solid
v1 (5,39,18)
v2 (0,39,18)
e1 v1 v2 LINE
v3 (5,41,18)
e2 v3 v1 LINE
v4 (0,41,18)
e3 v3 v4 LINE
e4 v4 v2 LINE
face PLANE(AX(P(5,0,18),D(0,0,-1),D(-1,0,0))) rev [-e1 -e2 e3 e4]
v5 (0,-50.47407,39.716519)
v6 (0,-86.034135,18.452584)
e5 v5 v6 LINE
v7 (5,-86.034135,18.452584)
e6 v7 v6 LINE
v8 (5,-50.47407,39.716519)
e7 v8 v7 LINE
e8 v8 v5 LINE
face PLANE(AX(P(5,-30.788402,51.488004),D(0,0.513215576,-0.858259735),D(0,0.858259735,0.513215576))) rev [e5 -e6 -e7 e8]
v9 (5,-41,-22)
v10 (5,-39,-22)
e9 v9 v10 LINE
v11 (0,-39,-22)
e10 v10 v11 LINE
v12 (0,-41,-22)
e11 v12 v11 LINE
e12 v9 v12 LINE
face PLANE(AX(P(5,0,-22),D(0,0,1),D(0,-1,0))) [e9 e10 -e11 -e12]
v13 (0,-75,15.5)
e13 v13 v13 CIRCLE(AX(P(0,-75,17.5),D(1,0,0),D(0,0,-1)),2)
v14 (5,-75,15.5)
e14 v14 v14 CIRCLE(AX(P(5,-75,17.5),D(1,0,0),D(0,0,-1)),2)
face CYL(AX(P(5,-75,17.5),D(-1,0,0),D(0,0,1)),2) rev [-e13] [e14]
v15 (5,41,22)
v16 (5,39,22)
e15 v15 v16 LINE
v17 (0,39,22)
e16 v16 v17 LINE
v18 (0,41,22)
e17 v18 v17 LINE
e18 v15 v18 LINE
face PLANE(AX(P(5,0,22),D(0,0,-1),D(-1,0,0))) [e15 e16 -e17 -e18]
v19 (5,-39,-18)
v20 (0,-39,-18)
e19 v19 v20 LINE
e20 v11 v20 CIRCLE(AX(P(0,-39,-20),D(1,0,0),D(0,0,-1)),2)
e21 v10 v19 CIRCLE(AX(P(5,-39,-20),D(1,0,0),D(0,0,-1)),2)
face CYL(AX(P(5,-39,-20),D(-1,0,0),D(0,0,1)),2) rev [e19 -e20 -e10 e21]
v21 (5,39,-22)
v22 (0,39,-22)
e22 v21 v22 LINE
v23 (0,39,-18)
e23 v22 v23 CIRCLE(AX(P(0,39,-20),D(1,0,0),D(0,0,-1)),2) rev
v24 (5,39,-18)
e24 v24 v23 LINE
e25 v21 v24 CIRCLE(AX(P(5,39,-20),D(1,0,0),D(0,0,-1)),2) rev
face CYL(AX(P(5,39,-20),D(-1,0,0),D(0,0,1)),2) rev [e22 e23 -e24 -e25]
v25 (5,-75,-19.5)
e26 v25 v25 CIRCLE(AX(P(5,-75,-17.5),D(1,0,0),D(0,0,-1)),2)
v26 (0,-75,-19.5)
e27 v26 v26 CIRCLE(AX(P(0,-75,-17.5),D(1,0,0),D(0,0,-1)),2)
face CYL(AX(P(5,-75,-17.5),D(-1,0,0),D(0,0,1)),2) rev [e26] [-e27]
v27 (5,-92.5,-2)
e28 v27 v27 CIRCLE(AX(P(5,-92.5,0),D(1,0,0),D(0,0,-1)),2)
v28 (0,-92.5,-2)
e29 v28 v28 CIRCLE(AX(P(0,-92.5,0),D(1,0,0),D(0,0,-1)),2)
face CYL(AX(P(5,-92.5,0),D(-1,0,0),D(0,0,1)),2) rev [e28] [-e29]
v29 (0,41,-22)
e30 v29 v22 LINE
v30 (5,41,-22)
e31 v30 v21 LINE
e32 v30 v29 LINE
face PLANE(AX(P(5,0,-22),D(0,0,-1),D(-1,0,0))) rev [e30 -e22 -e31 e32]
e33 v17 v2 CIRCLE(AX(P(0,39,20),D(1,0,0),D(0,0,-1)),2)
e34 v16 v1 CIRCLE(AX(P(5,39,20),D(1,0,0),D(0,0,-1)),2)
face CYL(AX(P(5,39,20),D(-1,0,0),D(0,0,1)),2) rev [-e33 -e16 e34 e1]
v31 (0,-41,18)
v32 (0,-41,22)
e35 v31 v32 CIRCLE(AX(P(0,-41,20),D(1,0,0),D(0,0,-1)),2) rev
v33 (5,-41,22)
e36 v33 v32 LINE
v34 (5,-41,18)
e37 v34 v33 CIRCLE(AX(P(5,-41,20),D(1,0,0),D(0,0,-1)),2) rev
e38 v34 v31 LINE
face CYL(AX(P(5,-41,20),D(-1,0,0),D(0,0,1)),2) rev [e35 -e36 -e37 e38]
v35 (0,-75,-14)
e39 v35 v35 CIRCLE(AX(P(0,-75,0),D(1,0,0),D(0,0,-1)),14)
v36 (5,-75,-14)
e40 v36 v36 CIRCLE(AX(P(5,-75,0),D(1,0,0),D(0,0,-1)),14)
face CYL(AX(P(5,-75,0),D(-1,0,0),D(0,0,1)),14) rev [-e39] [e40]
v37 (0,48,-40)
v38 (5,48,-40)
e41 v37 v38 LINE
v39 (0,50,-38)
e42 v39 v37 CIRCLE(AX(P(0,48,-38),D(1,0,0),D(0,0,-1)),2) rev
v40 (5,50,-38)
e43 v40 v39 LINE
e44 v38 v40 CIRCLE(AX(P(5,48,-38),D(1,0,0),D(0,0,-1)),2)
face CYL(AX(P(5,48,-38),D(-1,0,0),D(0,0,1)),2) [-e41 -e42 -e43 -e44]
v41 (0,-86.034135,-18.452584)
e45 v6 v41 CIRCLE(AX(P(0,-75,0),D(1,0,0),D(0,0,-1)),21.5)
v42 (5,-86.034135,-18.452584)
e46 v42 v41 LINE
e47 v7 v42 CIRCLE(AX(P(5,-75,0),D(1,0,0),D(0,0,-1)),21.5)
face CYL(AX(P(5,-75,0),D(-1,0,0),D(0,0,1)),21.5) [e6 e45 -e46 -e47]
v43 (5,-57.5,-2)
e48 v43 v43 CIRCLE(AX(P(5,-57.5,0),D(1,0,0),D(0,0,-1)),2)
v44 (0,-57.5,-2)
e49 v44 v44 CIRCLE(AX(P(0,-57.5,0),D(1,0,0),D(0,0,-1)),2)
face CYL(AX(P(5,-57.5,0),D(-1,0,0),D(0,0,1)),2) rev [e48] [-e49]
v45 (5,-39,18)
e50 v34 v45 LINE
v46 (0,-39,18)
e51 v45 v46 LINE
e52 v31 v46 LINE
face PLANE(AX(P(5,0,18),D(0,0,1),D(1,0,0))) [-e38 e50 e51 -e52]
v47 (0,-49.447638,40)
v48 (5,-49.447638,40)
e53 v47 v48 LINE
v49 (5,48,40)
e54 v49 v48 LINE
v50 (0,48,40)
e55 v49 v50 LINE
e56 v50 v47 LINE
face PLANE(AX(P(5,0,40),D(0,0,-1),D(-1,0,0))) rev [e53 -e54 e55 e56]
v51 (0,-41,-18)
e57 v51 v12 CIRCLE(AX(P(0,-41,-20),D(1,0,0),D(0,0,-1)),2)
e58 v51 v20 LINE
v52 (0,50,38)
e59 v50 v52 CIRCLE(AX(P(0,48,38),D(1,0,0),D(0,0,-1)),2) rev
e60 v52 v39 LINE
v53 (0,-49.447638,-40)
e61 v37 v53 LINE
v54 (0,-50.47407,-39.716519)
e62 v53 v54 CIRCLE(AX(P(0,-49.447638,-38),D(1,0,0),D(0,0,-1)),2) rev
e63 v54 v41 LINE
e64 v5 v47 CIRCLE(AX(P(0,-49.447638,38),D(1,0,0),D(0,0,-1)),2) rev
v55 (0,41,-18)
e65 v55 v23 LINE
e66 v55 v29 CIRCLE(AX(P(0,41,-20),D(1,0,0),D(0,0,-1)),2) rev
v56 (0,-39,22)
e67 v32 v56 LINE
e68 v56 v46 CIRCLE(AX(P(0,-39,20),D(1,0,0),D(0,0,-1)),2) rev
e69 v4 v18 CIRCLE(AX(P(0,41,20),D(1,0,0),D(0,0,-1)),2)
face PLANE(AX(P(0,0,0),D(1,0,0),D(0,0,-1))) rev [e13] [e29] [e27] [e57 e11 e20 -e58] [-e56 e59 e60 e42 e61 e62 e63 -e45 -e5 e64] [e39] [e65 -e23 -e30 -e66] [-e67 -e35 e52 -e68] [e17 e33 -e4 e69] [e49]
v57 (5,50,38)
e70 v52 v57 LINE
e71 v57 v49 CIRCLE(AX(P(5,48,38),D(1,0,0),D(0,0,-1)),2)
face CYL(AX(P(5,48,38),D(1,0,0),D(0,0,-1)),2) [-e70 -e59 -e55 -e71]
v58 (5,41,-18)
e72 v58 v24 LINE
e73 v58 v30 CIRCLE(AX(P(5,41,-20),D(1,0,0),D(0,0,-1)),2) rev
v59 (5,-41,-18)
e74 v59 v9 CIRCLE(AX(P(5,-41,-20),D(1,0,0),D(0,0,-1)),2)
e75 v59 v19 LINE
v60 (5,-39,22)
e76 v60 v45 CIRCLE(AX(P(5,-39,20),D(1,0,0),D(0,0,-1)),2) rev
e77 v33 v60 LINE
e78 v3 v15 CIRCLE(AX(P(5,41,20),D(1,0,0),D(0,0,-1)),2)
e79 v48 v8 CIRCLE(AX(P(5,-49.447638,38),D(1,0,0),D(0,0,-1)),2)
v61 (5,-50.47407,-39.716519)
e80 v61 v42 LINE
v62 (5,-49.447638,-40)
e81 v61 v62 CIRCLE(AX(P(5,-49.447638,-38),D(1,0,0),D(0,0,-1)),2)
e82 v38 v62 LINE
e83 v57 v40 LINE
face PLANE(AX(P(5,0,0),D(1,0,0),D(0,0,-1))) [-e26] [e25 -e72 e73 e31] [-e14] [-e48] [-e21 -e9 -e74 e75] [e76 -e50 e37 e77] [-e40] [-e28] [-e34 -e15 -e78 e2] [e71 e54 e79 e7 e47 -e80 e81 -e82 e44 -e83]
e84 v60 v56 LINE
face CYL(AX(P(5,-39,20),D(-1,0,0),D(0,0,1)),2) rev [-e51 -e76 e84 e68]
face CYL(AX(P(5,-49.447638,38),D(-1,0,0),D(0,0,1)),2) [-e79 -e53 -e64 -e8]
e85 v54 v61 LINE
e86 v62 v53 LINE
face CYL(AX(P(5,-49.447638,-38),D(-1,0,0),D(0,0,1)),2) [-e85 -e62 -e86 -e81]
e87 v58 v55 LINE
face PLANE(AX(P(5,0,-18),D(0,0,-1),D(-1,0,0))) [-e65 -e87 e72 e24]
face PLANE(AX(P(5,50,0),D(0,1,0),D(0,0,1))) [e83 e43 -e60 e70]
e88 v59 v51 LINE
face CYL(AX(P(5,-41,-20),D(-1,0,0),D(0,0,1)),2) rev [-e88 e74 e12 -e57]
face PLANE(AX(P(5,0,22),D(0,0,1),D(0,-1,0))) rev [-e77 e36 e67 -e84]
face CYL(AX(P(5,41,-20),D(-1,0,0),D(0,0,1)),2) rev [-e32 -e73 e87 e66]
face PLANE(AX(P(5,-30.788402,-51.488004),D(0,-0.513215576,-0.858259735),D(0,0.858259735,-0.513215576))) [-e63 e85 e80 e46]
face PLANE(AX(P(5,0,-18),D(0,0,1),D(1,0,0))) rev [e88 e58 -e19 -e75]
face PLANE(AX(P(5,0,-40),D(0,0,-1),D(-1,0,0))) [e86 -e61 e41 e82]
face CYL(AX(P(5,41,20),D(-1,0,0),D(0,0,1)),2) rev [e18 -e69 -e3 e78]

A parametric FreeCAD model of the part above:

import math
import FreeCAD as App
import Part
import Sketcher
Q = App.Units.Quantity


def edges_at(feature, points):
    """Names of the edges that pass closest to the given points."""
    edges = feature.Shape.Edges
    near = lambda p: min(range(len(edges)), key=lambda i: edges[i].distToShape(Part.Vertex(*p))[0])
    return sorted({f"Edge{near(p) + 1}" for p in points})

doc = App.newDocument("Part")
body = doc.addObject("PartDesign::Body", "Body")

# Sketch on YZ plane
sketch1 = body.newObject("Sketcher::SketchObject", "Sketch")
sketch1.AttachmentSupport = (doc.getObject("YZ_Plane"), [""])
sketch1.MapMode = "FlatFace"
sketch1.addGeometry(Part.LineSegment(App.Vector(50, 40, 0), App.Vector(-50, 40, 0)), False)
sketch1.addGeometry(Part.LineSegment(App.Vector(-50, 40, 0), App.Vector(-86, 18.5, 0)), False)
sketch1.addGeometry(Part.ArcOfCircle(Part.Circle(App.Vector(-75, 0, 0), App.Vector(0, 0, 1), 21.5), math.radians(121), math.radians(239)), False)
sketch1.addGeometry(Part.LineSegment(App.Vector(-86, -18.5, 0), App.Vector(-50, -40, 0)), False)
sketch1.addGeometry(Part.LineSegment(App.Vector(-50, -40, 0), App.Vector(50, -40, 0)), False)
sketch1.addGeometry(Part.LineSegment(App.Vector(50, -40, 0), App.Vector(50, 40, 0)), False)
sketch1.addGeometry(Part.Circle(App.Vector(-75, 17.5, 0), App.Vector(0, 0, 1), 2), False)
sketch1.addGeometry(Part.ArcOfCircle(Part.Circle(App.Vector(-41, 20, 0), App.Vector(0, 0, 1), 2), math.radians(90), math.radians(270)), False)
sketch1.addGeometry(Part.LineSegment(App.Vector(-41, 22, 0), App.Vector(-39, 22, 0)), False)
sketch1.addGeometry(Part.ArcOfCircle(Part.Circle(App.Vector(-39, 20, 0), App.Vector(0, 0, 1), 2), math.radians(-90), math.radians(90)), False)
sketch1.addGeometry(Part.LineSegment(App.Vector(-39, 18, 0), App.Vector(-41, 18, 0)), False)
sketch1.addGeometry(Part.Circle(App.Vector(-92.5, 0, 0), App.Vector(0, 0, 1), 2), False)
sketch1.addGeometry(Part.Circle(App.Vector(-75, 0, 0), App.Vector(0, 0, 1), 14), False)
sketch1.addGeometry(Part.Circle(App.Vector(-75, -17.5, 0), App.Vector(0, 0, 1), 2), False)
sketch1.addGeometry(Part.Circle(App.Vector(-57.5, 0, 0), App.Vector(0, 0, 1), 2), False)
sketch1.addGeometry(Part.ArcOfCircle(Part.Circle(App.Vector(-39, -20, 0), App.Vector(0, 0, 1), 2), math.radians(-90), math.radians(90)), False)
sketch1.addGeometry(Part.LineSegment(App.Vector(-39, -22, 0), App.Vector(-41, -22, 0)), False)
sketch1.addGeometry(Part.ArcOfCircle(Part.Circle(App.Vector(-41, -20, 0), App.Vector(0, 0, 1), 2), math.radians(90), math.radians(270)), False)
sketch1.addGeometry(Part.LineSegment(App.Vector(-41, -18, 0), App.Vector(-39, -18, 0)), False)
sketch1.addGeometry(Part.ArcOfCircle(Part.Circle(App.Vector(39, 20, 0), App.Vector(0, 0, 1), 2), math.radians(90), math.radians(270)), False)
sketch1.addGeometry(Part.LineSegment(App.Vector(39, 22, 0), App.Vector(41, 22, 0)), False)
sketch1.addGeometry(Part.ArcOfCircle(Part.Circle(App.Vector(41, 20, 0), App.Vector(0, 0, 1), 2), math.radians(-90), math.radians(90)), False)
sketch1.addGeometry(Part.LineSegment(App.Vector(41, 18, 0), App.Vector(39, 18, 0)), False)
sketch1.addGeometry(Part.ArcOfCircle(Part.Circle(App.Vector(41, -20, 0), App.Vector(0, 0, 1), 2), math.radians(-90), math.radians(90)), False)
sketch1.addGeometry(Part.LineSegment(App.Vector(41, -22, 0), App.Vector(39, -22, 0)), False)
sketch1.addGeometry(Part.ArcOfCircle(Part.Circle(App.Vector(39, -20, 0), App.Vector(0, 0, 1), 2), math.radians(90), math.radians(270)), False)
sketch1.addGeometry(Part.LineSegment(App.Vector(39, -18, 0), App.Vector(41, -18, 0)), False)
sketch1.addConstraint(Sketcher.Constraint("Coincident", 0, 2, 1, 1))
sketch1.addConstraint(Sketcher.Constraint("Tangent", 1, 2, 2, 1))
sketch1.addConstraint(Sketcher.Constraint("Tangent", 2, 2, 3, 1))
sketch1.addConstraint(Sketcher.Constraint("Coincident", 3, 2, 4, 1))
sketch1.addConstraint(Sketcher.Constraint("Coincident", 4, 2, 5, 1))
sketch1.addConstraint(Sketcher.Constraint("Coincident", 5, 2, 0, 1))
sketch1.addConstraint(Sketcher.Constraint("Tangent", 7, 1, 8, 1))
sketch1.addConstraint(Sketcher.Constraint("Tangent", 8, 2, 9, 2))
sketch1.addConstraint(Sketcher.Constraint("Tangent", 9, 1, 10, 1))
sketch1.addConstraint(Sketcher.Constraint("Tangent", 10, 2, 7, 2))
sketch1.addConstraint(Sketcher.Constraint("Tangent", 15, 1, 16, 1))
sketch1.addConstraint(Sketcher.Constraint("Tangent", 16, 2, 17, 2))
sketch1.addConstraint(Sketcher.Constraint("Tangent", 17, 1, 18, 1))
sketch1.addConstraint(Sketcher.Constraint("Tangent", 18, 2, 15, 2))
sketch1.addConstraint(Sketcher.Constraint("Tangent", 19, 1, 20, 1))
sketch1.addConstraint(Sketcher.Constraint("Tangent", 20, 2, 21, 2))
sketch1.addConstraint(Sketcher.Constraint("Tangent", 21, 1, 22, 1))
sketch1.addConstraint(Sketcher.Constraint("Tangent", 22, 2, 19, 2))
sketch1.addConstraint(Sketcher.Constraint("Tangent", 23, 1, 24, 1))
sketch1.addConstraint(Sketcher.Constraint("Tangent", 24, 2, 25, 2))
sketch1.addConstraint(Sketcher.Constraint("Tangent", 25, 1, 26, 1))
sketch1.addConstraint(Sketcher.Constraint("Tangent", 26, 2, 23, 2))
sketch1.addConstraint(Sketcher.Constraint("Horizontal", 0))
sketch1.addConstraint(Sketcher.Constraint("Horizontal", 4))
sketch1.addConstraint(Sketcher.Constraint("Vertical", 5))
sketch1.addConstraint(Sketcher.Constraint("Horizontal", 8))
sketch1.addConstraint(Sketcher.Constraint("Horizontal", 10))
sketch1.addConstraint(Sketcher.Constraint("Horizontal", 16))
sketch1.addConstraint(Sketcher.Constraint("Horizontal", 18))
sketch1.addConstraint(Sketcher.Constraint("Horizontal", 20))
sketch1.addConstraint(Sketcher.Constraint("Horizontal", 22))
sketch1.addConstraint(Sketcher.Constraint("Horizontal", 24))
sketch1.addConstraint(Sketcher.Constraint("Horizontal", 26))
sketch1.addConstraint(Sketcher.Constraint("Coincident", 12, 3, 2, 3))
sketch1.addConstraint(Sketcher.Constraint("Equal", 6, 7))
sketch1.addConstraint(Sketcher.Constraint("Equal", 9, 11))
sketch1.addConstraint(Sketcher.Constraint("Equal", 11, 13))
sketch1.addConstraint(Sketcher.Constraint("Equal", 13, 14))
sketch1.addConstraint(Sketcher.Constraint("Equal", 14, 15))
sketch1.addConstraint(Sketcher.Constraint("Equal", 17, 19))
sketch1.addConstraint(Sketcher.Constraint("Equal", 21, 23))
sketch1.addConstraint(Sketcher.Constraint("Symmetric", 15, 3, 19, 3, -1, 1))
sketch1.addConstraint(Sketcher.Constraint("Symmetric", 7, 3, 23, 3, -1, 1))
sketch1.addConstraint(Sketcher.Constraint("Symmetric", 0, 2, 4, 2, -1, 1))
sketch1.addConstraint(Sketcher.Constraint("Symmetric", 9, 3, 19, 3, -2))
sketch1.addConstraint(Sketcher.Constraint("Symmetric", 6, 3, 13, 3, -1))
sketch1.addConstraint(Sketcher.Constraint("Symmetric", 1, 2, 2, 2, -1))
sketch1.addConstraint(Sketcher.Constraint("PointOnObject", 11, 3, -1))
sketch1.addConstraint(Sketcher.Constraint("PointOnObject", 14, 3, -1))
sketch1.addConstraint(Sketcher.Constraint("Vertical", 2, 3, 6, 3))
sketch1.addConstraint(Sketcher.Constraint("Vertical", 7, 3, 17, 3))
sketch1.addConstraint(Sketcher.Constraint("Vertical", 21, 3, 23, 3))
sketch1.addConstraint(Sketcher.Constraint("Vertical", 19, 3, 25, 3))
sketch1.addConstraint(Sketcher.Constraint("Diameter", 6, Q("4 mm")))
sketch1.addConstraint(Sketcher.Constraint("Diameter", 12, Q("28 mm")))
sketch1.addConstraint(Sketcher.Constraint("Radius", 2, Q("21.5 mm")))
sketch1.addConstraint(Sketcher.Constraint("DistanceX", 0, 2, 0, 1, Q("100 mm")))
sketch1.addConstraint(Sketcher.Constraint("DistanceX", 8, 1, 8, 2, Q("2 mm")))
sketch1.addConstraint(Sketcher.Constraint("DistanceY", 5, 1, 5, 2, Q("80 mm")))
sketch1.addConstraint(Sketcher.Constraint("DistanceX", 2, 3, -1, 1, Q("75 mm")))
sketch1.addConstraint(Sketcher.Constraint("DistanceX", 7, 3, -1, 1, Q("41 mm")))
sketch1.addConstraint(Sketcher.Constraint("DistanceY", -1, 1, 7, 3, Q("20 mm")))
sketch1.addConstraint(Sketcher.Constraint("DistanceY", 13, 3, 6, 3, Q("35 mm")))
sketch1.addConstraint(Sketcher.Constraint("DistanceX", 11, 3, -1, 1, Q("92.5 mm")))
sketch1.addConstraint(Sketcher.Constraint("DistanceX", 14, 3, -1, 1, Q("57.5 mm")))
pad1 = body.newObject("PartDesign::Pad", "Pad")
pad1.Profile = sketch1
pad1.Length = 5
doc.recompute()

fillet = body.newObject("PartDesign::Fillet", "Fillet")
fillet.Base = (pad1, edges_at(pad1, [
    (2.5, -50, -40),
    (2.5, -50, 40),
    (2.5, 50, 40),
    (2.5, 50, -40),
]))
fillet.Radius = 2

doc.recompute()
